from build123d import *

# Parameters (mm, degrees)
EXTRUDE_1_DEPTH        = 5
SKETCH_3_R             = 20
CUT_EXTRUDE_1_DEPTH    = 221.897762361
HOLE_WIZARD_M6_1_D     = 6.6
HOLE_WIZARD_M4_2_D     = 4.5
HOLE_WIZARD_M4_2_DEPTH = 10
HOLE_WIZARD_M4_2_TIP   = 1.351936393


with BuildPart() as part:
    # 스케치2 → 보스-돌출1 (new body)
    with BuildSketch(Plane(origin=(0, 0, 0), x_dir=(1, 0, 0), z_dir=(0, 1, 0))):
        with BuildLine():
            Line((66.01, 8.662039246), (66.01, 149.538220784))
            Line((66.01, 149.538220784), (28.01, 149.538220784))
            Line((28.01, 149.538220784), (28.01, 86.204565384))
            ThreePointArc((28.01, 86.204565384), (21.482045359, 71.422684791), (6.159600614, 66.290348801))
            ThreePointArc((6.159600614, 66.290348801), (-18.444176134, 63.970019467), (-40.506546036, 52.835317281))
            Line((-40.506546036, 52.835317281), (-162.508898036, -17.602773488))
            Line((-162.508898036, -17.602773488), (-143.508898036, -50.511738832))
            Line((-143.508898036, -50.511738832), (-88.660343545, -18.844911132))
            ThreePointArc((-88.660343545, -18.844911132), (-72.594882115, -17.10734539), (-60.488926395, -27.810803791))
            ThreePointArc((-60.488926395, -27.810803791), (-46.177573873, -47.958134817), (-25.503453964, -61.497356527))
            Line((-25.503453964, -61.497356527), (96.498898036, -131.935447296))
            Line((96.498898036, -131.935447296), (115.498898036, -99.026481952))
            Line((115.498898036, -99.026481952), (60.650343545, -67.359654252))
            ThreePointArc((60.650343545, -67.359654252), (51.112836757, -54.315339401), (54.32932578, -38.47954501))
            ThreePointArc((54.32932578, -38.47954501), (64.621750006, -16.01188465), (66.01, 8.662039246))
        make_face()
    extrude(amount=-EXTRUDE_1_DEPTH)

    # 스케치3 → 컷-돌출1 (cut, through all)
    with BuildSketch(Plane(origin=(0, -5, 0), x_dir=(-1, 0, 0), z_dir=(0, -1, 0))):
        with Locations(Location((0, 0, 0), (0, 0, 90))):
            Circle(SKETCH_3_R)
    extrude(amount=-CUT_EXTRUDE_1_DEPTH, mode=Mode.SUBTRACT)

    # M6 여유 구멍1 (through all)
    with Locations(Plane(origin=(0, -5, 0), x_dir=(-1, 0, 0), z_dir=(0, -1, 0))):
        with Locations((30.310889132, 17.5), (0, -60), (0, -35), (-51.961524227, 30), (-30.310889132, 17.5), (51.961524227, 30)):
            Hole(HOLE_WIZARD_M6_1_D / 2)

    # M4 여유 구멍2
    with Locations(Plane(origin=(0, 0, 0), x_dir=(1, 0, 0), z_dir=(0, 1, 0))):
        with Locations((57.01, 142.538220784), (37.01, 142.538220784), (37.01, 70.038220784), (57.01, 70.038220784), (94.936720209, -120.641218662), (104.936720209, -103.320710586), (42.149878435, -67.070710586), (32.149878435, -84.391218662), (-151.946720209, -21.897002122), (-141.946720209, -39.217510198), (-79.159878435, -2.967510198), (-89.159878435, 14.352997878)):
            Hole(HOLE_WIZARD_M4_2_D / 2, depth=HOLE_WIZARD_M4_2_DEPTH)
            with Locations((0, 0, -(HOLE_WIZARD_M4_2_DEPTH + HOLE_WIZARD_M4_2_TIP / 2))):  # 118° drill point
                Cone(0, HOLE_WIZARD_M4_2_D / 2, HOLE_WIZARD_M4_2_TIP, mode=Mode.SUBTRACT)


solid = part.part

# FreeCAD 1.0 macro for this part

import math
import FreeCAD as App
import Part
import Sketcher
Q = App.Units.Quantity

doc = App.newDocument("Part")
body = doc.addObject("PartDesign::Body", "Body")

sketch1 = body.newObject("Sketcher::SketchObject", "Sketch")
sketch1.AttachmentSupport = (doc.getObject("XZ_Plane"), [""])
sketch1.MapMode = "FlatFace"
sketch1.addGeometry(Part.LineSegment(App.Vector(66.01, -8.662039, 0), App.Vector(66.01, -149.538221, 0)), False)
sketch1.addGeometry(Part.LineSegment(App.Vector(66.01, -149.538221, 0), App.Vector(28.01, -149.538221, 0)), False)
sketch1.addGeometry(Part.LineSegment(App.Vector(28.01, -149.538221, 0), App.Vector(28.01, -86.204565, 0)), False)
sketch1.addGeometry(Part.ArcOfCircle(Part.Circle(App.Vector(8.01, -86.204565, 0), App.Vector(0, 0, 1), 20), math.radians(0), math.radians(95.308596)), False)
sketch1.addGeometry(Part.ArcOfCircle(Part.Circle(App.Vector(0, 0, 0), App.Vector(0, 0, 1), 66.575904), math.radians(-127.475817), math.radians(-84.691404)), False)
sketch1.addGeometry(Part.LineSegment(App.Vector(-40.506546, -52.835317, 0), App.Vector(-162.508898, 17.602773, 0)), False)
sketch1.addGeometry(Part.LineSegment(App.Vector(-162.508898, 17.602773, 0), App.Vector(-143.508898, 50.511739, 0)), False)
sketch1.addGeometry(Part.LineSegment(App.Vector(-143.508898, 50.511739, 0), App.Vector(-88.660344, 18.844911, 0)), False)
sketch1.addGeometry(Part.ArcOfCircle(Part.Circle(App.Vector(-78.660344, 36.165419, 0), App.Vector(0, 0, 1), 20), math.radians(-120), math.radians(-24.691404)), False)
sketch1.addGeometry(Part.ArcOfCircle(Part.Circle(App.Vector(0, 0, 0), App.Vector(0, 0, 1), 66.575904), math.radians(112.524183), math.radians(155.308596)), False)
sketch1.addGeometry(Part.LineSegment(App.Vector(-25.503454, 61.497357, 0), App.Vector(96.498898, 131.935447, 0)), False)
sketch1.addGeometry(Part.LineSegment(App.Vector(96.498898, 131.935447, 0), App.Vector(115.498898, 99.026482, 0)), False)
sketch1.addGeometry(Part.LineSegment(App.Vector(115.498898, 99.026482, 0), App.Vector(60.650344, 67.359654, 0)), False)
sketch1.addGeometry(Part.ArcOfCircle(Part.Circle(App.Vector(70.650344, 50.039146, 0), App.Vector(0, 0, 1), 20), math.radians(120), math.radians(215.308596)), False)
sketch1.addGeometry(Part.ArcOfCircle(Part.Circle(App.Vector(0, 0, 0), App.Vector(0, 0, 1), 66.575904), math.radians(-7.475817), math.radians(35.308596)), False)
sketch1.addConstraint(Sketcher.Constraint("Coincident", 0, 2, 1, 1))
sketch1.addConstraint(Sketcher.Constraint("Coincident", 1, 2, 2, 1))
sketch1.addConstraint(Sketcher.Constraint("Tangent", 2, 2, 3, 1))
sketch1.addConstraint(Sketcher.Constraint("Tangent", 3, 2, 4, 2))
sketch1.addConstraint(Sketcher.Constraint("Coincident", 4, 1, 5, 1))
sketch1.addConstraint(Sketcher.Constraint("Coincident", 5, 2, 6, 1))
sketch1.addConstraint(Sketcher.Constraint("Coincident", 6, 2, 7, 1))
sketch1.addConstraint(Sketcher.Constraint("Tangent", 7, 2, 8, 1))
sketch1.addConstraint(Sketcher.Constraint("Tangent", 8, 2, 9, 2))
sketch1.addConstraint(Sketcher.Constraint("Coincident", 9, 1, 10, 1))
sketch1.addConstraint(Sketcher.Constraint("Coincident", 10, 2, 11, 1))
sketch1.addConstraint(Sketcher.Constraint("Coincident", 11, 2, 12, 1))
sketch1.addConstraint(Sketcher.Constraint("Tangent", 12, 2, 13, 1))
sketch1.addConstraint(Sketcher.Constraint("Tangent", 13, 2, 14, 2))
sketch1.addConstraint(Sketcher.Constraint("Coincident", 14, 1, 0, 1))
sketch1.addConstraint(Sketcher.Constraint("Vertical", 0))
sketch1.addConstraint(Sketcher.Constraint("Horizontal", 1))
sketch1.addConstraint(Sketcher.Constraint("Vertical", 2))
sketch1.addConstraint(Sketcher.Constraint("Coincident", 4, 3, -1, 1))
sketch1.addConstraint(Sketcher.Constraint("Coincident", 9, 3, -1, 1))
sketch1.addConstraint(Sketcher.Constraint("Coincident", 14, 3, -1, 1))
sketch1.addConstraint(Sketcher.Constraint("Equal", 3, 8))
sketch1.addConstraint(Sketcher.Constraint("Equal", 4, 9))
sketch1.addConstraint(Sketcher.Constraint("Equal", 8, 13))
sketch1.addConstraint(Sketcher.Constraint("Equal", 9, 14))
sketch1.addConstraint(Sketcher.Constraint("Perpendicular", 5, 6))
sketch1.addConstraint(Sketcher.Constraint("Perpendicular", 6, 7))
sketch1.addConstraint(Sketcher.Constraint("Perpendicular", 10, 11))
sketch1.addConstraint(Sketcher.Constraint("Perpendicular", 11, 12))
sketch1.addConstraint(Sketcher.Constraint("Equal", 5, 10))
sketch1.addConstraint(Sketcher.Constraint("Equal", 6, 11))
sketch1.addConstraint(Sketcher.Constraint("Equal", 7, 12))
sketch1.addConstraint(Sketcher.Constraint("Radius", 3, Q("20 mm")))
sketch1.addConstraint(Sketcher.Constraint("DistanceX", 1, 2, 1, 1, Q("38 mm")))
sketch1.addConstraint(Sketcher.Constraint("Angle", 5, Q("150 deg")))
sketch1.addConstraint(Sketcher.Constraint("Angle", 10, Q("30 deg")))
sketch1.addConstraint(Sketcher.Constraint("Distance", 6, Q("38 mm")))
sketch1.addConstraint(Sketcher.Constraint("DistanceX", -1, 1, 3, 3, Q("8.01 mm")))
sketch1.addConstraint(Sketcher.Constraint("Radius", 4, Q("66.575904 mm")))
sketch1.addConstraint(Sketcher.Constraint("DistanceY", 0, 2, 0, 1, Q("140.876182 mm")))
sketch1.addConstraint(Sketcher.Constraint("DistanceX", 5, 2, -1, 1, Q("162.508898 mm")))
sketch1.addConstraint(Sketcher.Constraint("DistanceX", -1, 1, 10, 2, Q("96.498898 mm")))
pad1 = body.newObject("PartDesign::Pad", "Pad")
pad1.Profile = sketch1
pad1.Length = 5

sketch2 = body.newObject("Sketcher::SketchObject", "Sketch001")
sketch2.AttachmentSupport = (doc.getObject("XZ_Plane"), [""])
sketch2.MapMode = "FlatFace"
sketch2.AttachmentOffset = App.Placement(App.Vector(0, 0, 5), App.Rotation())
sketch2.addGeometry(Part.Circle(App.Vector(0, 0, 0), App.Vector(0, 0, 1), 20), False)
sketch2.addConstraint(Sketcher.Constraint("Coincident", 0, 3, -1, 1))
sketch2.addConstraint(Sketcher.Constraint("Diameter", 0, Q("40 mm")))
pocket1 = body.newObject("PartDesign::Pocket", "Pocket")
pocket1.Profile = sketch2
pocket1.Type = "ThroughAll"

sketch3 = body.newObject("Sketcher::SketchObject", "Sketch002")
sketch3.AttachmentSupport = (doc.getObject("XZ_Plane"), [""])
sketch3.MapMode = "FlatFace"
sketch3.AttachmentOffset = App.Placement(App.Vector(0, 0, 5), App.Rotation())
sketch3.addGeometry(Part.Circle(App.Vector(-30.310889, -17.5, 0), App.Vector(0, 0, 1), 3.3), False)
sketch3.addGeometry(Part.Circle(App.Vector(0, 60, 0), App.Vector(0, 0, 1), 3.3), False)
sketch3.addGeometry(Part.Circle(App.Vector(0, 35, 0), App.Vector(0, 0, 1), 3.3), False)
sketch3.addGeometry(Part.Circle(App.Vector(51.961524, -30, 0), App.Vector(0, 0, 1), 3.3), False)
sketch3.addGeometry(Part.Circle(App.Vector(30.310889, -17.5, 0), App.Vector(0, 0, 1), 3.3), False)
sketch3.addGeometry(Part.Circle(App.Vector(-51.961524, -30, 0), App.Vector(0, 0, 1), 3.3), False)
sketch3.addConstraint(Sketcher.Constraint("Equal", 0, 1))
sketch3.addConstraint(Sketcher.Constraint("Equal", 1, 2))
sketch3.addConstraint(Sketcher.Constraint("Equal", 2, 3))
sketch3.addConstraint(Sketcher.Constraint("Equal", 3, 4))
sketch3.addConstraint(Sketcher.Constraint("Equal", 4, 5))
sketch3.addConstraint(Sketcher.Constraint("Symmetric", 0, 3, 4, 3, -2))
sketch3.addConstraint(Sketcher.Constraint("Symmetric", 3, 3, 5, 3, -2))
sketch3.addConstraint(Sketcher.Constraint("PointOnObject", 1, 3, -2))
sketch3.addConstraint(Sketcher.Constraint("PointOnObject", 2, 3, -2))
sketch3.addConstraint(Sketcher.Constraint("Diameter", 0, Q("6.6 mm")))
sketch3.addConstraint(Sketcher.Constraint("DistanceY", -1, 1, 1, 3, Q("60 mm")))
sketch3.addConstraint(Sketcher.Constraint("DistanceY", -1, 1, 2, 3, Q("35 mm")))
sketch3.addConstraint(Sketcher.Constraint("DistanceY", 3, 3, -1, 1, Q("30 mm")))
sketch3.addConstraint(Sketcher.Constraint("DistanceY", 0, 3, -1, 1, Q("17.5 mm")))
sketch3.addConstraint(Sketcher.Constraint("DistanceX", 0, 3, -1, 1, Q("30.310889 mm")))
sketch3.addConstraint(Sketcher.Constraint("DistanceX", 5, 3, 3, 3, Q("103.923048 mm")))
doc.recompute()
hole = body.newObject("PartDesign::Hole", "Hole")
hole.Profile = sketch3
hole.ThreadType = "None"
hole.Diameter = 6.6
hole.DepthType = "ThroughAll"

sketch4 = body.newObject("Sketcher::SketchObject", "Sketch003")
sketch4.AttachmentSupport = (doc.getObject("XZ_Plane"), [""])
sketch4.MapMode = "FlatFace"
sketch4.addGeometry(Part.Circle(App.Vector(57.01, -142.538221, 0), App.Vector(0, 0, 1), 2.25), False)
sketch4.addGeometry(Part.Circle(App.Vector(37.01, -142.538221, 0), App.Vector(0, 0, 1), 2.25), False)
sketch4.addGeometry(Part.Circle(App.Vector(37.01, -70.038221, 0), App.Vector(0, 0, 1), 2.25), False)
sketch4.addGeometry(Part.Circle(App.Vector(57.01, -70.038221, 0), App.Vector(0, 0, 1), 2.25), False)
sketch4.addGeometry(Part.Circle(App.Vector(94.93672, 120.641219, 0), App.Vector(0, 0, 1), 2.25), False)
sketch4.addGeometry(Part.Circle(App.Vector(104.93672, 103.320711, 0), App.Vector(0, 0, 1), 2.25), False)
sketch4.addGeometry(Part.Circle(App.Vector(42.149878, 67.070711, 0), App.Vector(0, 0, 1), 2.25), False)
sketch4.addGeometry(Part.Circle(App.Vector(32.149878, 84.391219, 0), App.Vector(0, 0, 1), 2.25), False)
sketch4.addGeometry(Part.Circle(App.Vector(-151.94672, 21.897002, 0), App.Vector(0, 0, 1), 2.25), False)
sketch4.addGeometry(Part.Circle(App.Vector(-141.94672, 39.21751, 0), App.Vector(0, 0, 1), 2.25), False)
sketch4.addGeometry(Part.Circle(App.Vector(-79.159878, 2.96751, 0), App.Vector(0, 0, 1), 2.25), False)
sketch4.addGeometry(Part.Circle(App.Vector(-89.159878, -14.352998, 0), App.Vector(0, 0, 1), 2.25), False)
sketch4.addConstraint(Sketcher.Constraint("Equal", 0, 1))
sketch4.addConstraint(Sketcher.Constraint("Equal", 1, 2))
sketch4.addConstraint(Sketcher.Constraint("Equal", 2, 3))
sketch4.addConstraint(Sketcher.Constraint("Equal", 3, 4))
sketch4.addConstraint(Sketcher.Constraint("Equal", 4, 5))
sketch4.addConstraint(Sketcher.Constraint("Equal", 5, 6))
sketch4.addConstraint(Sketcher.Constraint("Equal", 6, 7))
sketch4.addConstraint(Sketcher.Constraint("Equal", 7, 8))
sketch4.addConstraint(Sketcher.Constraint("Equal", 8, 9))
sketch4.addConstraint(Sketcher.Constraint("Equal", 9, 10))
sketch4.addConstraint(Sketcher.Constraint("Equal", 10, 11))
sketch4.addConstraint(Sketcher.Constraint("Horizontal", 0, 3, 1, 3))
sketch4.addConstraint(Sketcher.Constraint("Horizontal", 2, 3, 3, 3))
sketch4.addConstraint(Sketcher.Constraint("Vertical", 1, 3, 2, 3))
sketch4.addConstraint(Sketcher.Constraint("Vertical", 0, 3, 3, 3))
sketch4.addConstraint(Sketcher.Constraint("Diameter", 0, Q("4.5 mm")))
sketch4.addConstraint(Sketcher.Constraint("DistanceX", 1, 3, 0, 3, Q("20 mm")))
sketch4.addConstraint(Sketcher.Constraint("DistanceX", 4, 3, 5, 3, Q("10 mm")))
sketch4.addConstraint(Sketcher.Constraint("DistanceX", 7, 3, 6, 3, Q("10 mm")))
sketch4.addConstraint(Sketcher.Constraint("DistanceX", 8, 3, 9, 3, Q("10 mm")))
sketch4.addConstraint(Sketcher.Constraint("DistanceX", 11, 3, 10, 3, Q("10 mm")))
sketch4.addConstraint(Sketcher.Constraint("DistanceY", 1, 3, 2, 3, Q("72.5 mm")))
sketch4.addConstraint(Sketcher.Constraint("DistanceX", -1, 1, 0, 3, Q("57.01 mm")))
sketch4.addConstraint(Sketcher.Constraint("DistanceY", 6, 3, 5, 3, Q("36.25 mm")))
sketch4.addConstraint(Sketcher.Constraint("DistanceY", 7, 3, 4, 3, Q("36.25 mm")))
sketch4.addConstraint(Sketcher.Constraint("DistanceY", 10, 3, 9, 3, Q("36.25 mm")))
sketch4.addConstraint(Sketcher.Constraint("DistanceY", 11, 3, 8, 3, Q("36.25 mm")))
sketch4.addConstraint(Sketcher.Constraint("DistanceX", 8, 3, 7, 3, Q("184.096599 mm")))
sketch4.addConstraint(Sketcher.Constraint("DistanceY", 9, 3, 6, 3, Q("27.8532 mm")))
sketch4.addConstraint(Sketcher.Constraint("DistanceY", 0, 3, -1, 1, Q("142.538221 mm")))
sketch4.addConstraint(Sketcher.Constraint("DistanceX", -1, 1, 4, 3, Q("94.93672 mm")))
sketch4.addConstraint(Sketcher.Constraint("DistanceY", -1, 1, 4, 3, Q("120.641219 mm")))
sketch4.addConstraint(Sketcher.Constraint("DistanceY", -1, 1, 5, 3, Q("103.320711 mm")))
sketch4.addConstraint(Sketcher.Constraint("DistanceX", -1, 1, 6, 3, Q("42.149878 mm")))
sketch4.addConstraint(Sketcher.Constraint("DistanceX", 10, 3, -1, 1, Q("79.159878 mm")))
sketch4.addConstraint(Sketcher.Constraint("DistanceY", 8, 3, 6, 3, Q("45.173708 mm")))
doc.recompute()
hole2 = body.newObject("PartDesign::Hole", "Hole001")
hole2.Profile = sketch4
hole2.ThreadType = "None"
hole2.Diameter = 4.5
hole2.DepthType = "Dimension"
hole2.Depth = 10
hole2.DrillPoint = "Angled"
hole2.DrillPointAngle = 118
hole2.Reversed = True

doc.recompute()
